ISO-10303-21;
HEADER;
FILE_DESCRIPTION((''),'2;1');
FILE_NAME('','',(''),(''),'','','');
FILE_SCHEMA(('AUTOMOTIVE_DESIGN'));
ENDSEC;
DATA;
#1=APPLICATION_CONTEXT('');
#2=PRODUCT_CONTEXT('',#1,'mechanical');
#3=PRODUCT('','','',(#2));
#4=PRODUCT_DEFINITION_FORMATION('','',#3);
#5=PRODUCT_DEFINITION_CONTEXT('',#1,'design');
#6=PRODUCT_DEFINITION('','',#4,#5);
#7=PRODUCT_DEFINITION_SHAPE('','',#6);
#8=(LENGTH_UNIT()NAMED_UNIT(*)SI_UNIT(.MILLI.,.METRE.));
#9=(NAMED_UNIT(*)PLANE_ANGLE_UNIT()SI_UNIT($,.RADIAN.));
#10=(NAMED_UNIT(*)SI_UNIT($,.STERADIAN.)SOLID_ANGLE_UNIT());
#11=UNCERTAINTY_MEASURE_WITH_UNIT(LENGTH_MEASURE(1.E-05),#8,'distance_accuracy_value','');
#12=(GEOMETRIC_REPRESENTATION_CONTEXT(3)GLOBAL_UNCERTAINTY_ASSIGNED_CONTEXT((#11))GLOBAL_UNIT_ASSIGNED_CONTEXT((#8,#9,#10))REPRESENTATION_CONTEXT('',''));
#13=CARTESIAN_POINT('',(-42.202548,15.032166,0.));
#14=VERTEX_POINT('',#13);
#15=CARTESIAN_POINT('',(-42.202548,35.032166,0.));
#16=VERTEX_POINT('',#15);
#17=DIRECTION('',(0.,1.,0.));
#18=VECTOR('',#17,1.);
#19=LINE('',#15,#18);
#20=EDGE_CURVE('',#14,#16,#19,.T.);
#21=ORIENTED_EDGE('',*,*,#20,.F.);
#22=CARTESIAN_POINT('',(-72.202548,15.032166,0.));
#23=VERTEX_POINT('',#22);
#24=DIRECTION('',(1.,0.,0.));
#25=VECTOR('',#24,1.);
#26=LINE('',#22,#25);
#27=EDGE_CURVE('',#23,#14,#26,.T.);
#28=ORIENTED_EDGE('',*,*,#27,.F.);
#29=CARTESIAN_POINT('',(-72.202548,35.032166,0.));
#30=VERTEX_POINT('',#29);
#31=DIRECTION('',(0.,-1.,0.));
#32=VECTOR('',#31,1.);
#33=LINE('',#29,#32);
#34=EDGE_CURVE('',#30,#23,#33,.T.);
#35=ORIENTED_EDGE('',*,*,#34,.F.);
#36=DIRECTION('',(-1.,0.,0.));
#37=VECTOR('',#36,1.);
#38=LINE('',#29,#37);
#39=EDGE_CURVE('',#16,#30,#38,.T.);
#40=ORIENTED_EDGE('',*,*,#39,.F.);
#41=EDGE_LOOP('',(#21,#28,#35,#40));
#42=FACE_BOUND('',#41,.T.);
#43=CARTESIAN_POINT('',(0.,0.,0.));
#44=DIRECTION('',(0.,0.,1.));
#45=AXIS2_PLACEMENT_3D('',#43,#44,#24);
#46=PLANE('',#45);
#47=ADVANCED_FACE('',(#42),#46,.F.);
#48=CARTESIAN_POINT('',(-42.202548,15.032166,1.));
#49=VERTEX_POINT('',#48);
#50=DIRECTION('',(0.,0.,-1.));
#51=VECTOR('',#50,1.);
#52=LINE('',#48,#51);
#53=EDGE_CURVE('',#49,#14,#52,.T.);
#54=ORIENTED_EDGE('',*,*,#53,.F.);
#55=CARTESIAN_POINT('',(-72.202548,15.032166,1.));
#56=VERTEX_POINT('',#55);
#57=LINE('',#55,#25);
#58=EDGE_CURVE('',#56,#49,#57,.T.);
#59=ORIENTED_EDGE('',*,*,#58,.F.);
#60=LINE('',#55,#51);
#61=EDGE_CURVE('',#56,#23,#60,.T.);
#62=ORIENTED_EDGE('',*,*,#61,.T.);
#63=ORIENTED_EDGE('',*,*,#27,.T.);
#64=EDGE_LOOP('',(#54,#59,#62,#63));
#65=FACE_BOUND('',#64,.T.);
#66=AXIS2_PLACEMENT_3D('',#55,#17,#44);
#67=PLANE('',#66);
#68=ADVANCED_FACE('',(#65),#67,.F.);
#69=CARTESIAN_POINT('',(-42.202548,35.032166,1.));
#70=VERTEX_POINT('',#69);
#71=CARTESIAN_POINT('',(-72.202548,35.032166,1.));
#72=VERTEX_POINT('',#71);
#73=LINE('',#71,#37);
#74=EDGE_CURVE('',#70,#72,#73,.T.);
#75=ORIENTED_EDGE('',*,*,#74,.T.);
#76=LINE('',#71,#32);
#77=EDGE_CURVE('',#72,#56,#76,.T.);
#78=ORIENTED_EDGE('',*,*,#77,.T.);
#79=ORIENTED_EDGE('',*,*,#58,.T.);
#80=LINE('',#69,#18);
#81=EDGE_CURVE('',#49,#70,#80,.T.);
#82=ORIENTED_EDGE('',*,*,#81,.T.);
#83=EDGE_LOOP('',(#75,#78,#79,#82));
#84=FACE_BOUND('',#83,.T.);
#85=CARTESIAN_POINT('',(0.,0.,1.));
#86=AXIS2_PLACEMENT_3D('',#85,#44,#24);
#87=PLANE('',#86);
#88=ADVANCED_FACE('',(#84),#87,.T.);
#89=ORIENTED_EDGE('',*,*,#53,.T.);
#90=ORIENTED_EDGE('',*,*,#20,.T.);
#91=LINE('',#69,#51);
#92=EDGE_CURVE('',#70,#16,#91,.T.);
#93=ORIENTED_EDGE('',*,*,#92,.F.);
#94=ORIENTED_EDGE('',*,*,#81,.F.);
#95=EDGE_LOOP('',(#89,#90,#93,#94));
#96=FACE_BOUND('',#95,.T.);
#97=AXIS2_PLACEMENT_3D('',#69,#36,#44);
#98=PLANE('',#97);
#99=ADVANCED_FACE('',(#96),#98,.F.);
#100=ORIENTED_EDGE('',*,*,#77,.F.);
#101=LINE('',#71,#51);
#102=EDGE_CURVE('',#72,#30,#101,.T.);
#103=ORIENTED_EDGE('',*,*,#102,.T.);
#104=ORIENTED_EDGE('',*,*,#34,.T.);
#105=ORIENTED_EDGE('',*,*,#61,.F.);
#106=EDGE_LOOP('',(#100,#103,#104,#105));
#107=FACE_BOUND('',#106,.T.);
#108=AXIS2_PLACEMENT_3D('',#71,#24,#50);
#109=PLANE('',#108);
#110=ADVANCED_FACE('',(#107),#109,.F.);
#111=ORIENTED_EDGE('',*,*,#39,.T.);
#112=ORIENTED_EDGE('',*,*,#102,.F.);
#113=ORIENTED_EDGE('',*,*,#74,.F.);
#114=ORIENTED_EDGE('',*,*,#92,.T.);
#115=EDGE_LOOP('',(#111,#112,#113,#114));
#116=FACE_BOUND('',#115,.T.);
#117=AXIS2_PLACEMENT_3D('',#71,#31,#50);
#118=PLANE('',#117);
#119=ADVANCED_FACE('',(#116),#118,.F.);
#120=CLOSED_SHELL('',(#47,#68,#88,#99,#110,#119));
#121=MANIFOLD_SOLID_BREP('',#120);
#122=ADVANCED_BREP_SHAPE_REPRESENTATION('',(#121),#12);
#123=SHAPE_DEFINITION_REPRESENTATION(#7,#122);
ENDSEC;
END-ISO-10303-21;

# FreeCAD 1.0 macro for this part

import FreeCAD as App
import Part
import Sketcher
from FreeCAD import Vector
Q = App.Units.Quantity

doc = App.newDocument("Part")
body = doc.addObject("PartDesign::Body", "Body")

# Sketch on XY plane
sketch1 = doc.addObject("Sketcher::SketchObject", "Sketch")
body.addObject(sketch1)
sketch1.AttachmentSupport = (doc.XY_Plane, [""])
sketch1.MapMode = "FlatFace"
sketch1.addGeometry([
    Part.LineSegment(Vector(-72.202548, 35.032166, 0), Vector(-72.202548, 15.032166, 0)),
    Part.LineSegment(Vector(-72.202548, 15.032166, 0), Vector(-42.202548, 15.032166, 0)),
    Part.LineSegment(Vector(-42.202548, 15.032166, 0), Vector(-42.202548, 35.032166, 0)),
    Part.LineSegment(Vector(-42.202548, 35.032166, 0), Vector(-72.202548, 35.032166, 0)),
], False)
sketch1.addConstraint([
    Sketcher.Constraint("Coincident", 0, 2, 1, 1),
    Sketcher.Constraint("Coincident", 1, 2, 2, 1),
    Sketcher.Constraint("Coincident", 2, 2, 3, 1),
    Sketcher.Constraint("Coincident", 3, 2, 0, 1),
    Sketcher.Constraint("Vertical", 0),
    Sketcher.Constraint("Horizontal", 1),
    Sketcher.Constraint("Vertical", 2),
    Sketcher.Constraint("Horizontal", 3),
    Sketcher.Constraint("DistanceX", 1, 1, 1, 2, Q("30 mm")),
    Sketcher.Constraint("DistanceY", 0, 2, 0, 1, Q("20 mm")),
    Sketcher.Constraint("DistanceX", 0, 2, -1, 1, Q("72.202548 mm")),
    Sketcher.Constraint("DistanceY", -1, 1, 0, 2, Q("15.032166 mm")),
])
pad1 = doc.addObject("PartDesign::Pad", "Pad")
body.addObject(pad1)
pad1.Profile = sketch1
pad1.Length = 1

doc.recompute()
